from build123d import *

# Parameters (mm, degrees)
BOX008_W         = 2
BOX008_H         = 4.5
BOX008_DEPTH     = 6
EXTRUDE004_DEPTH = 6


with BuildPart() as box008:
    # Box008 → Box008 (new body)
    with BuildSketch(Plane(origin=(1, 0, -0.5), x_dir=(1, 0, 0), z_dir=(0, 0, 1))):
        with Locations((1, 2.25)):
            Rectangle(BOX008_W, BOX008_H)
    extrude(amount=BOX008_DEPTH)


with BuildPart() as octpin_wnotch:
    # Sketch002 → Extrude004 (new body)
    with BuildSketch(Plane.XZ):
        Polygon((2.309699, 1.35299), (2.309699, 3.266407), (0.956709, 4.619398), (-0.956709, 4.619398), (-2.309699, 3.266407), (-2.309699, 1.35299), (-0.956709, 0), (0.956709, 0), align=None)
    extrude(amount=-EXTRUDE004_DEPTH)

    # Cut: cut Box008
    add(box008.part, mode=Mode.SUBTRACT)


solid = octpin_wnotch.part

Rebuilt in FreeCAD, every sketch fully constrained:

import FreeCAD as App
import Part
import Sketcher
from FreeCAD import Vector

doc = App.newDocument("Part")
body = doc.addObject("PartDesign::Body", "Body")

# Sketch on XY plane
sketch1 = body.newObject("Sketcher::SketchObject", "Sketch")
sketch1.AttachmentSupport = (doc.getObject("XY_Plane"), [""])
sketch1.MapMode = "FlatFace"
sketch1.AttachmentOffset = App.Placement(Vector(0, 0, -0.5), App.Rotation())
sketch1.addGeometry([
    Part.LineSegment(Vector(1, 4.5, 0), Vector(1, 0, 0)),
    Part.LineSegment(Vector(1, 0, 0), Vector(3, 0, 0)),
    Part.LineSegment(Vector(3, 0, 0), Vector(3, 4.5, 0)),
    Part.LineSegment(Vector(3, 4.5, 0), Vector(1, 4.5, 0)),
], False)
sketch1.addConstraint([
    Sketcher.Constraint("Coincident", 0, 2, 1, 1),
    Sketcher.Constraint("Coincident", 1, 2, 2, 1),
    Sketcher.Constraint("Coincident", 2, 2, 3, 1),
    Sketcher.Constraint("Coincident", 3, 2, 0, 1),
    Sketcher.Constraint("Vertical", 0),
    Sketcher.Constraint("Horizontal", 1),
    Sketcher.Constraint("Vertical", 2),
    Sketcher.Constraint("Horizontal", 3),
    Sketcher.Constraint("PointOnObject", 0, 2, -1),
    Sketcher.Constraint("DistanceX", 1, 1, 1, 2, 2.0),
    Sketcher.Constraint("DistanceY", 0, 2, 0, 1, 4.5),
    Sketcher.Constraint("DistanceX", -1, 1, 0, 2, 1.0),
])
pad1 = body.newObject("PartDesign::Pad", "Pad")
pad1.Profile = sketch1
pad1.Length = 6
body2 = doc.addObject("PartDesign::Body", "Body001")

# Sketch on XZ plane
sketch2 = body2.newObject("Sketcher::SketchObject", "Sketch001")
sketch2.AttachmentSupport = (doc.getObject("XZ_Plane001"), [""])
sketch2.MapMode = "FlatFace"
sketch2.addGeometry([
    Part.LineSegment(Vector(2.3, 1.4, 0), Vector(2.3, 3.3, 0)),  # 0
    Part.LineSegment(Vector(2.3, 3.3, 0), Vector(1, 4.6, 0)),  # 1
    Part.LineSegment(Vector(1, 4.6, 0), Vector(-1, 4.6, 0)),  # 2
    Part.LineSegment(Vector(-1, 4.6, 0), Vector(-2.3, 3.3, 0)),  # 3
    Part.LineSegment(Vector(-2.3, 3.3, 0), Vector(-2.3, 1.4, 0)),  # 4
    Part.LineSegment(Vector(-2.3, 1.4, 0), Vector(-1, 0, 0)),  # 5
    Part.LineSegment(Vector(-1, 0, 0), Vector(1, 0, 0)),  # 6
    Part.LineSegment(Vector(1, 0, 0), Vector(2.3, 1.4, 0)),  # 7
], False)
sketch2.addConstraint([
    Sketcher.Constraint("Coincident", 0, 2, 1, 1),
    Sketcher.Constraint("Coincident", 1, 2, 2, 1),
    Sketcher.Constraint("Coincident", 2, 2, 3, 1),
    Sketcher.Constraint("Coincident", 3, 2, 4, 1),
    Sketcher.Constraint("Coincident", 4, 2, 5, 1),
    Sketcher.Constraint("Coincident", 5, 2, 6, 1),
    Sketcher.Constraint("Coincident", 6, 2, 7, 1),
    Sketcher.Constraint("Coincident", 7, 2, 0, 1),
    Sketcher.Constraint("Vertical", 0),
    Sketcher.Constraint("Horizontal", 2),
    Sketcher.Constraint("Vertical", 4),
    Sketcher.Constraint("Horizontal", 6),
    Sketcher.Constraint("Symmetric", 5, 2, 6, 2, -1, 1),
    Sketcher.Constraint("Symmetric", 0, 2, 3, 2, -2),
    Sketcher.Constraint("Perpendicular", 1, 3),
    Sketcher.Constraint("Perpendicular", 3, 5),
    Sketcher.Constraint("Perpendicular", 5, 7),
    Sketcher.Constraint("Horizontal", 4, 2, 7, 2),
    Sketcher.Constraint("Vertical", 2, 2, 5, 2),
    Sketcher.Constraint("Equal", 6, 0),
    Sketcher.Constraint("DistanceX", 2, 2, 2, 1, 1.913418),
    Sketcher.Constraint("DistanceX", -1, 1, 0, 2, 2.309699),
])
pad2 = body2.newObject("PartDesign::Pad", "Pad001")
pad2.Profile = sketch2
pad2.Length = 6
pad2.Reversed = True
doc.recompute()

boolean = body2.newObject("PartDesign::Boolean", "Boolean")
boolean.Type = "Cut"
boolean.addObjects([body])

doc.recompute()
